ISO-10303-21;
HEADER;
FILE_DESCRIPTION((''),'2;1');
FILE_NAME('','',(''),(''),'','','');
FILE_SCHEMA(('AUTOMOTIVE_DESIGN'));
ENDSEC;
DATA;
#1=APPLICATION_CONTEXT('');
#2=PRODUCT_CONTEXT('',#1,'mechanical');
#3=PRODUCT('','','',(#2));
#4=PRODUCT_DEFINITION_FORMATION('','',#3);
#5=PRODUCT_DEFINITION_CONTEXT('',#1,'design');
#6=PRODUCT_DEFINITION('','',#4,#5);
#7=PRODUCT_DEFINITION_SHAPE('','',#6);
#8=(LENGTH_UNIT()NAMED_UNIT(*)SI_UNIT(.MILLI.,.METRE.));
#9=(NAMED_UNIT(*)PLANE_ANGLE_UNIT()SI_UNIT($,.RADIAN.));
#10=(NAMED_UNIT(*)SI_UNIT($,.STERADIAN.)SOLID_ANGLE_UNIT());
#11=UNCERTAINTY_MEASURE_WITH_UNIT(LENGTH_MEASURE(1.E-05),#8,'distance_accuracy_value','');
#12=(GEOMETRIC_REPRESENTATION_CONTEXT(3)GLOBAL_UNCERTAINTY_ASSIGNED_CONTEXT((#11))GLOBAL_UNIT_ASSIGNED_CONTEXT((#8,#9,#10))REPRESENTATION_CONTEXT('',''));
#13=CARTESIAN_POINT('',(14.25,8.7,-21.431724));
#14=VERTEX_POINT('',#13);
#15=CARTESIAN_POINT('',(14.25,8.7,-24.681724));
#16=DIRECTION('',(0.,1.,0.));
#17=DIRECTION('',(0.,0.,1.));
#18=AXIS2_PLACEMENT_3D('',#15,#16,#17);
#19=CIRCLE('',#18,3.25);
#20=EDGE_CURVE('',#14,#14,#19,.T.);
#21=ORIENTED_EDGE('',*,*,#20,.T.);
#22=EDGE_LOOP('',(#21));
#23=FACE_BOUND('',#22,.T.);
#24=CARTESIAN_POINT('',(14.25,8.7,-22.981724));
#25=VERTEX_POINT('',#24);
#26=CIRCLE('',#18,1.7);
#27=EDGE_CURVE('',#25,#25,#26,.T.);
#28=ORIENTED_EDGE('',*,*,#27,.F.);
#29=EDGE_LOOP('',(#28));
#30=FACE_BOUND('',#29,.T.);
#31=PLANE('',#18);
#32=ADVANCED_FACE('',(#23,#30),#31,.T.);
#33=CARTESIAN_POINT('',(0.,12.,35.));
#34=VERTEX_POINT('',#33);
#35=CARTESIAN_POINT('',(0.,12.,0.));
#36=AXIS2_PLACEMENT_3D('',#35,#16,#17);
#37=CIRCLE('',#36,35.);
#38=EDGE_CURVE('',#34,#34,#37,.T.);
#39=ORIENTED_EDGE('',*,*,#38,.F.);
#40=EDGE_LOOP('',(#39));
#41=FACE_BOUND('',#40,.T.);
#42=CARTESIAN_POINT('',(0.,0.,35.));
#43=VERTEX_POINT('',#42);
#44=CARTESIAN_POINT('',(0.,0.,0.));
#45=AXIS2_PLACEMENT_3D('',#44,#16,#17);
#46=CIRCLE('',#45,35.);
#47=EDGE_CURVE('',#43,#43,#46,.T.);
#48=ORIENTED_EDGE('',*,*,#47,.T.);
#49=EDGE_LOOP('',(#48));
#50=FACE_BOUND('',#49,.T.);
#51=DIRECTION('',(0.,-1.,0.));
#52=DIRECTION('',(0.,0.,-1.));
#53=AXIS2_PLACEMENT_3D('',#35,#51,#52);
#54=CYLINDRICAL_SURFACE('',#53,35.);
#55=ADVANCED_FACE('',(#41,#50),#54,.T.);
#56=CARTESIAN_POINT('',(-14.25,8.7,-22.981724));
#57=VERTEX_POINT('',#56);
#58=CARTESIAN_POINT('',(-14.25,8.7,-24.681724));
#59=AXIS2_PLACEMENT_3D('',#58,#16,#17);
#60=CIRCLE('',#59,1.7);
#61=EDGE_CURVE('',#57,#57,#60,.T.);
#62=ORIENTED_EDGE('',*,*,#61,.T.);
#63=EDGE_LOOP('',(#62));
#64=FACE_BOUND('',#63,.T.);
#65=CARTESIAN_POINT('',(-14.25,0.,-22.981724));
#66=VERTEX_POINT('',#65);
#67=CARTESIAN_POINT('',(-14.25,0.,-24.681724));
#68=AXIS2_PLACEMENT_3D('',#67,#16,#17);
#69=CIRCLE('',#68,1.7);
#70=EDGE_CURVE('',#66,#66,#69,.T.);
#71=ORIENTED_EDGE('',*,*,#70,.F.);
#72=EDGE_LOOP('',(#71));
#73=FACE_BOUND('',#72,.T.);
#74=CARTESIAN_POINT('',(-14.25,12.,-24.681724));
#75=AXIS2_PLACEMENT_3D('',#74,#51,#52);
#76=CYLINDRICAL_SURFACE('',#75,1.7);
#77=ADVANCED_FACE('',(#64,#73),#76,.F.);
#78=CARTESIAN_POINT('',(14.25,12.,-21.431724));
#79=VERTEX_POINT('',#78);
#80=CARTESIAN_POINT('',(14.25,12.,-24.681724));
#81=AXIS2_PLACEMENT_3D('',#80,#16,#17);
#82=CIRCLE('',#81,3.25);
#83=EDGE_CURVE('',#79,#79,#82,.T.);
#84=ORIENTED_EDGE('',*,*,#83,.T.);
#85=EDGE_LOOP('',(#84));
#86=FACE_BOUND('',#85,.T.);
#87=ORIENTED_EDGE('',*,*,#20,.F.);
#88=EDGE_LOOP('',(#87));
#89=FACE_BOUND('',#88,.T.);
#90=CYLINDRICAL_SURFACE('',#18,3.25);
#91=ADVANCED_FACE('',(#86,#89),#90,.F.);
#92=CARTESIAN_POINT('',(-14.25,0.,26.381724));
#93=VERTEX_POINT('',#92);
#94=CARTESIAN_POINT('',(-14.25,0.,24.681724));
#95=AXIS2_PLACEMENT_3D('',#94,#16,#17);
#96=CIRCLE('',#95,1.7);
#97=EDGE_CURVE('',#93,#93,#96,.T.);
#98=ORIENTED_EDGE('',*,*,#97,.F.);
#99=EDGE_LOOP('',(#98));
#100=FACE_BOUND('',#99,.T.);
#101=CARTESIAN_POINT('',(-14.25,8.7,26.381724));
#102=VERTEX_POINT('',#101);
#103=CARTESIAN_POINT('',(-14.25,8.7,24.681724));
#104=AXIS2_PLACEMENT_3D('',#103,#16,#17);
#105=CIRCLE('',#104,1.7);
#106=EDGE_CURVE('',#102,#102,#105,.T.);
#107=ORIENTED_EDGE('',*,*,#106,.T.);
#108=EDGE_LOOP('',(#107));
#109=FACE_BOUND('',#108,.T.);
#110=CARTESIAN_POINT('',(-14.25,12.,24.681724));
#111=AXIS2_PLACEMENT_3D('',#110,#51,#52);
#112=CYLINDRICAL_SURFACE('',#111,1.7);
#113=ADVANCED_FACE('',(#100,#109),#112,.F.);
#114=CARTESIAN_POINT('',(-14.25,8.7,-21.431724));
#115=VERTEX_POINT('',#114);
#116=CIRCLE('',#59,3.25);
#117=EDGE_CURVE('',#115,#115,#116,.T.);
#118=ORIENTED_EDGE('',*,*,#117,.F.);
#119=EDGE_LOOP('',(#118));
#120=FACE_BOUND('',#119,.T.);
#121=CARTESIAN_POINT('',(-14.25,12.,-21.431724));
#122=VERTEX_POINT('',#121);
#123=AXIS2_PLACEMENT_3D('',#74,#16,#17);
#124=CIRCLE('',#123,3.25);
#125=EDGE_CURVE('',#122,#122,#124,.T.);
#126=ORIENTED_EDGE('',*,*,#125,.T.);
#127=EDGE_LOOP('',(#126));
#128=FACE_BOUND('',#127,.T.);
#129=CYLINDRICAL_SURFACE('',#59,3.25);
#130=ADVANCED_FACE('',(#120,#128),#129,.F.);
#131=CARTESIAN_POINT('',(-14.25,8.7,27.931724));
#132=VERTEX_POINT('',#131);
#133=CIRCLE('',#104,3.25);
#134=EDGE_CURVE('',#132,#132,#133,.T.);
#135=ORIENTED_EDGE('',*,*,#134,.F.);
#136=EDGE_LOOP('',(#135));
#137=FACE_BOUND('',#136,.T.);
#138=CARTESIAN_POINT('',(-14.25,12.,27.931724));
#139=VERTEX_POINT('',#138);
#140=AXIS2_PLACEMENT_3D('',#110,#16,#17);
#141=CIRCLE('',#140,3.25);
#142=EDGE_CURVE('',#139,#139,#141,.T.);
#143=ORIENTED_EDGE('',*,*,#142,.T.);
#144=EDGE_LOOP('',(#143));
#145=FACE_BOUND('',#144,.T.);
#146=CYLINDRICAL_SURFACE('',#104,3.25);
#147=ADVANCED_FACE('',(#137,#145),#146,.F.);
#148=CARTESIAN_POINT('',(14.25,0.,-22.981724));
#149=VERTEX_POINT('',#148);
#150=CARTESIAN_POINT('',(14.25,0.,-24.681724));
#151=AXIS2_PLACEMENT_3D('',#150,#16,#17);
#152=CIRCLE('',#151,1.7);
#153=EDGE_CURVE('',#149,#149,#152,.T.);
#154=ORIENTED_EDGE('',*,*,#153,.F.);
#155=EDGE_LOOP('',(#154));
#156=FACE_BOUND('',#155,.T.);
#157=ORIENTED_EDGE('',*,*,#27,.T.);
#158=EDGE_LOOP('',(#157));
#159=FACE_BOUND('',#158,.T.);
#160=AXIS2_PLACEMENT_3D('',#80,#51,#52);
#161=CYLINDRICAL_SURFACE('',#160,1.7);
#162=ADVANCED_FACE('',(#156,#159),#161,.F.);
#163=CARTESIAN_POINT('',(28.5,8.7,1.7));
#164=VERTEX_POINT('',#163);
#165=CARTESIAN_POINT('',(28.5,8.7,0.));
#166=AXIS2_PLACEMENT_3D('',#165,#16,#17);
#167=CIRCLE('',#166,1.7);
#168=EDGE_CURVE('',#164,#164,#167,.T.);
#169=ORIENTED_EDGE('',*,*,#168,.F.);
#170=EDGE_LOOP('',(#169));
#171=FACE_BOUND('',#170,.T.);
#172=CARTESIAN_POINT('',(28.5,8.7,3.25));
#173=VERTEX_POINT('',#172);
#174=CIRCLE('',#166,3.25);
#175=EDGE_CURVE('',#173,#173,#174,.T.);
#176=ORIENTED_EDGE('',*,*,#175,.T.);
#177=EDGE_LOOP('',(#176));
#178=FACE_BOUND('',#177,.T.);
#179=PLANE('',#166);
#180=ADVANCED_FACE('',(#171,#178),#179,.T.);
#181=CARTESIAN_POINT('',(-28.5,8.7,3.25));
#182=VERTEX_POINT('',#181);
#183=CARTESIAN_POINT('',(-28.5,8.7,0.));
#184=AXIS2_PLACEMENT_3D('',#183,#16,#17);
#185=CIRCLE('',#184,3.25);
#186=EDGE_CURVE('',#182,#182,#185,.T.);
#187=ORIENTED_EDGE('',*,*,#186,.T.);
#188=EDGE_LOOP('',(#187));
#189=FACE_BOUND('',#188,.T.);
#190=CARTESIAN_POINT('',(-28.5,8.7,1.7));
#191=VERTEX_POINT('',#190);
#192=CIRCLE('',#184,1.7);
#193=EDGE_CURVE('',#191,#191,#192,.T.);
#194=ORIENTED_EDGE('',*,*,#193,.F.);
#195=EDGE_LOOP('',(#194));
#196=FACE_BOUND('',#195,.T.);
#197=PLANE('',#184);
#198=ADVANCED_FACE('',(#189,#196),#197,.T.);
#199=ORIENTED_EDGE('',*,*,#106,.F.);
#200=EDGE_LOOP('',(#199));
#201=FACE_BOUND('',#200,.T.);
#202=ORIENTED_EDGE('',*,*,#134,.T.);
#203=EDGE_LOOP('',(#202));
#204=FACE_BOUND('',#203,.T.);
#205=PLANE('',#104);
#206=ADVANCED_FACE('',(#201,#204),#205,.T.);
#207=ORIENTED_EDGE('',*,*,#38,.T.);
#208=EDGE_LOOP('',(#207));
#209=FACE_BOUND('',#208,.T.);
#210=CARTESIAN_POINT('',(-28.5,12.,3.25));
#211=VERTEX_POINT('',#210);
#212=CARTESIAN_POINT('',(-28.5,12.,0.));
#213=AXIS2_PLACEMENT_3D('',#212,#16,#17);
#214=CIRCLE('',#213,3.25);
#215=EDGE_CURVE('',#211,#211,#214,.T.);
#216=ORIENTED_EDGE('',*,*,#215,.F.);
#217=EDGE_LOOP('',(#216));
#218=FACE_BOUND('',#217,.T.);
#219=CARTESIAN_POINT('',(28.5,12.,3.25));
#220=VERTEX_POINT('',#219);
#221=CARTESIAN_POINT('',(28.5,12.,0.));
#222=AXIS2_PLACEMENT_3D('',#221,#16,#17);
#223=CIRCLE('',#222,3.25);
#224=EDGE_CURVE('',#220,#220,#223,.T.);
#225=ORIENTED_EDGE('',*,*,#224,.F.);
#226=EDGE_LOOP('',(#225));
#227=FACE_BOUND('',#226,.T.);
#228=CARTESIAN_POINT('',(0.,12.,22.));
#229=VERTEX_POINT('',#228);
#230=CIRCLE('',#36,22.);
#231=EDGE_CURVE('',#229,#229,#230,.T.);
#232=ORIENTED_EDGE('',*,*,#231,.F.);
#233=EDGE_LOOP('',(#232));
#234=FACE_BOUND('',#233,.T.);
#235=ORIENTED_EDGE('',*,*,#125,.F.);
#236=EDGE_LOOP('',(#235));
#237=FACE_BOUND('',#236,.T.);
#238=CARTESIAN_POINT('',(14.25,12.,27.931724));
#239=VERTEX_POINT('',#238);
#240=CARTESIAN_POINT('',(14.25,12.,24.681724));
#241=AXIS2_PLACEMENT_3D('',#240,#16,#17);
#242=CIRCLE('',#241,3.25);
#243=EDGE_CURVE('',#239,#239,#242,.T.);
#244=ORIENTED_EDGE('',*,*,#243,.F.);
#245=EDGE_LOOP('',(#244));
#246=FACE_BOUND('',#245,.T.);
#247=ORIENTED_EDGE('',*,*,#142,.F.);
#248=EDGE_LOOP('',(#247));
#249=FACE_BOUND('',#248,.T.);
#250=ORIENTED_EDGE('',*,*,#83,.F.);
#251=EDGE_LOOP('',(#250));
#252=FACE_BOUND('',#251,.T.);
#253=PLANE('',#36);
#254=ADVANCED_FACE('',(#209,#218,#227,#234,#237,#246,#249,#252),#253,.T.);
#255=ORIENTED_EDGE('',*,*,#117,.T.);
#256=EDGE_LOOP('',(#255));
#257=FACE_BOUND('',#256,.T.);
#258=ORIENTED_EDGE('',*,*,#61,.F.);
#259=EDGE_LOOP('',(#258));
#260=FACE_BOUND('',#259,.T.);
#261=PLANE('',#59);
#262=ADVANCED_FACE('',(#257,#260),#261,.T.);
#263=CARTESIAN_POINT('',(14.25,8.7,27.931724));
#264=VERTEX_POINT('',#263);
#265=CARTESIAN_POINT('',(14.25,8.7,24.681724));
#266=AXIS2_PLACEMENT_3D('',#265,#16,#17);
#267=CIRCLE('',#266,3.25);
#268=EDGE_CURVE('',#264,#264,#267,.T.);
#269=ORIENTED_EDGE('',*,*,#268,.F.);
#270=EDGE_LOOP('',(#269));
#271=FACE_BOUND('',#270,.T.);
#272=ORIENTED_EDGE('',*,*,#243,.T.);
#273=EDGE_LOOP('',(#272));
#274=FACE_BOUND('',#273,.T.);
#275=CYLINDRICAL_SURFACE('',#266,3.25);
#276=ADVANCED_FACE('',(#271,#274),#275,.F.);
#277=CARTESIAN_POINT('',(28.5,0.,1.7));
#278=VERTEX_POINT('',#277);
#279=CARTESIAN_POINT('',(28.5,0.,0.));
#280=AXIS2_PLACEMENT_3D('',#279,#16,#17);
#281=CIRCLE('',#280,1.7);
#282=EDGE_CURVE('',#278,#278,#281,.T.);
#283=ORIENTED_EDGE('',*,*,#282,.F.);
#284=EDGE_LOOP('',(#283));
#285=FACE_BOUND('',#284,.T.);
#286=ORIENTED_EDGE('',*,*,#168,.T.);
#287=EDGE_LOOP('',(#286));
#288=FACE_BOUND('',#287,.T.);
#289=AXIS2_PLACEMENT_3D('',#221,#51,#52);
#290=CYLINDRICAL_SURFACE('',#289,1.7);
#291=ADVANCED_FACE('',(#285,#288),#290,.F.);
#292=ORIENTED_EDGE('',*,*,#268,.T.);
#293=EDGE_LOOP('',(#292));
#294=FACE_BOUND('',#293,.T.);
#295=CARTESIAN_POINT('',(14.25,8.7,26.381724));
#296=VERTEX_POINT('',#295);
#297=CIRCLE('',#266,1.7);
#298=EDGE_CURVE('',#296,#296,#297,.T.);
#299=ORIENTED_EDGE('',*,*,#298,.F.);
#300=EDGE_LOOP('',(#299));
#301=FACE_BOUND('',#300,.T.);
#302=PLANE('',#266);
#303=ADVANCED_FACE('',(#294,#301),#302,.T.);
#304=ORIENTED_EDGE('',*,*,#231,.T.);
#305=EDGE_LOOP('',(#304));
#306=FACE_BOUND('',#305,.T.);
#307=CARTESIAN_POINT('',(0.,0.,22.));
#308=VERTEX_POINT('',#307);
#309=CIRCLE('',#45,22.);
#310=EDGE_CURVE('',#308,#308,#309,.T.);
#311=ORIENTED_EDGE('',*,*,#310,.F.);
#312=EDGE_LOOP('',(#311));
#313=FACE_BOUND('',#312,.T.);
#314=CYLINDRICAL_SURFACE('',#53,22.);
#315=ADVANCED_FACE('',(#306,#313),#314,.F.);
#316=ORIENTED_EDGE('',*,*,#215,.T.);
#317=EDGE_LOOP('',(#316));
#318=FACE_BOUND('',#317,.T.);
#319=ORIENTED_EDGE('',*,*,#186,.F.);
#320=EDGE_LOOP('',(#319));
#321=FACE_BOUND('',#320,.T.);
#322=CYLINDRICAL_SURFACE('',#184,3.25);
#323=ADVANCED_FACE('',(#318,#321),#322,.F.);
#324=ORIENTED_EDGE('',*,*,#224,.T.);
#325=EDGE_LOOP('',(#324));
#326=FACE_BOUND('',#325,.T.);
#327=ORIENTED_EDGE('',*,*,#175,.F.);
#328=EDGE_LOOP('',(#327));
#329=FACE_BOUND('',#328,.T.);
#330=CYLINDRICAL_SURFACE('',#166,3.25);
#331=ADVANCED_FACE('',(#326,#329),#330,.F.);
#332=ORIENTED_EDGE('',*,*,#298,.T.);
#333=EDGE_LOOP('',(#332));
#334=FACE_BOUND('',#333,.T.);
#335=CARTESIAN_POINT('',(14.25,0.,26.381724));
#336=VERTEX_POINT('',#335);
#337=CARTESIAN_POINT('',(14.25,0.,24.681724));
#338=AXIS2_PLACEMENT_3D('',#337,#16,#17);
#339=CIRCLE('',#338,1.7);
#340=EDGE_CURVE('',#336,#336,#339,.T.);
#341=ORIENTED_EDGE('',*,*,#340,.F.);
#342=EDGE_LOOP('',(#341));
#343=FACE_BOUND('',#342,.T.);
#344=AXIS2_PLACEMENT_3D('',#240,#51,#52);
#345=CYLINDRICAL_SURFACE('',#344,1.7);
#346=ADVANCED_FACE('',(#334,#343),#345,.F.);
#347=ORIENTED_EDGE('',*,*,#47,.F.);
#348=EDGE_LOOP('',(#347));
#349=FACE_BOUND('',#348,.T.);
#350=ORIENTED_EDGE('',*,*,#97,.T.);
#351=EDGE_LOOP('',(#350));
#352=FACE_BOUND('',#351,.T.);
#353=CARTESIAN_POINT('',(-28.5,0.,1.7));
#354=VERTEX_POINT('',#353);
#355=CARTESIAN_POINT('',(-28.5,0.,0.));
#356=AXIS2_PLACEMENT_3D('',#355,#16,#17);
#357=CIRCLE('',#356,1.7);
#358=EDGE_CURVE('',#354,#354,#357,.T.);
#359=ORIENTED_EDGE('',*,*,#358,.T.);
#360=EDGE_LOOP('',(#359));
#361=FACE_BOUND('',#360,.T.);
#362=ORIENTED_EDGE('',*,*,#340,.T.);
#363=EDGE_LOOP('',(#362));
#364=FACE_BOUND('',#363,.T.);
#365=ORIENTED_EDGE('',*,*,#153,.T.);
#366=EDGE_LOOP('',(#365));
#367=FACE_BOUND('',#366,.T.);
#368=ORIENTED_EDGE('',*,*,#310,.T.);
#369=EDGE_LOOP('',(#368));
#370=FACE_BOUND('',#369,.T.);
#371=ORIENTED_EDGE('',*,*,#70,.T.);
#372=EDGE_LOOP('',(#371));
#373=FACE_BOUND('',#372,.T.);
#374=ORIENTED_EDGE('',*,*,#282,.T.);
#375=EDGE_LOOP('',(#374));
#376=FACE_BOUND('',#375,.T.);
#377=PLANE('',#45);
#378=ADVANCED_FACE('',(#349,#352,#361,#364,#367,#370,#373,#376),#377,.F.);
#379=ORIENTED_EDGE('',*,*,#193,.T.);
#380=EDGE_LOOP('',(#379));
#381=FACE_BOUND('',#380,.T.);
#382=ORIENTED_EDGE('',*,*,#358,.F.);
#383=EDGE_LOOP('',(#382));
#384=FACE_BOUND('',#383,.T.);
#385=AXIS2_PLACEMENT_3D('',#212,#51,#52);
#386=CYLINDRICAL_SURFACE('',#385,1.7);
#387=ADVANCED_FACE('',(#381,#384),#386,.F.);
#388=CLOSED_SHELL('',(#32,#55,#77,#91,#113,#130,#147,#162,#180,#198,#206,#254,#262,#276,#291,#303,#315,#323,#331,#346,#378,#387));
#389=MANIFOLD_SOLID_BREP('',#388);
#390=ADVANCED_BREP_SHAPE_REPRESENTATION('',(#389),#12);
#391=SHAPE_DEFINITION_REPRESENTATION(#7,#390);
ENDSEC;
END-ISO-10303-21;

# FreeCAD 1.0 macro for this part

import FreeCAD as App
import Part
import Sketcher
from FreeCAD import Vector
Q = App.Units.Quantity

doc = App.newDocument("Part")
body = doc.addObject("PartDesign::Body", "Body")

sketch1 = doc.addObject("Sketcher::SketchObject", "Sketch")
body.addObject(sketch1)
sketch1.AttachmentSupport = (doc.XZ_Plane, [""])
sketch1.MapMode = "FlatFace"
sketch1.addGeometry([
    Part.Circle(Vector(0, 0, 0), Vector(0, 0, 1), 35),
    Part.Circle(Vector(-14.2, -24.7, 0), Vector(0, 0, 1), 1.7),
    Part.Circle(Vector(-28.5, 0, 0), Vector(0, 0, 1), 1.7),
    Part.Circle(Vector(-14.2, 24.7, 0), Vector(0, 0, 1), 1.7),
    Part.Circle(Vector(14.2, -24.7, 0), Vector(0, 0, 1), 1.7),
    Part.Circle(Vector(28.5, 0, 0), Vector(0, 0, 1), 1.7),
    Part.Circle(Vector(0, 0, 0), Vector(0, 0, 1), 22),
    Part.Circle(Vector(14.2, 24.7, 0), Vector(0, 0, 1), 1.7),
], False)
sketch1.addConstraint([
    Sketcher.Constraint("Coincident", 0, 3, -1, 1),
    Sketcher.Constraint("Coincident", 6, 3, -1, 1),
    Sketcher.Constraint("Equal", 1, 2),
    Sketcher.Constraint("Equal", 2, 3),
    Sketcher.Constraint("Equal", 3, 4),
    Sketcher.Constraint("Equal", 4, 5),
    Sketcher.Constraint("Equal", 5, 7),
    Sketcher.Constraint("Symmetric", 3, 3, 4, 3, -1, 1),
    Sketcher.Constraint("Symmetric", 2, 3, 5, 3, -1, 1),
    Sketcher.Constraint("Symmetric", 1, 3, 7, 3, -1, 1),
    Sketcher.Constraint("Symmetric", 1, 3, 4, 3, -2),
    Sketcher.Constraint("PointOnObject", 2, 3, -1),
    Sketcher.Constraint("Diameter", 0, Q("70 mm")),
    Sketcher.Constraint("Diameter", 6, Q("44 mm")),
    Sketcher.Constraint("Diameter", 1, Q("3.4 mm")),
    Sketcher.Constraint("DistanceX", 2, 3, 5, 3, Q("57 mm")),
    Sketcher.Constraint("DistanceX", 1, 3, 4, 3, Q("28.5 mm")),
    Sketcher.Constraint("DistanceY", 1, 3, 3, 3, Q("49.363448 mm")),
])
pad1 = doc.addObject("PartDesign::Pad", "Pad")
body.addObject(pad1)
pad1.Profile = sketch1
pad1.Length = 12
pad1.Reversed = True

sketch2 = doc.addObject("Sketcher::SketchObject", "Sketch001")
body.addObject(sketch2)
sketch2.AttachmentSupport = (doc.XZ_Plane, [""])
sketch2.MapMode = "FlatFace"
sketch2.AttachmentOffset = App.Placement(Vector(0, 0, -12), App.Rotation())
sketch2.addGeometry([
    Part.Circle(Vector(-28.5, 0, 0), Vector(0, 0, 1), 3.2),
    Part.Circle(Vector(-14.2, -24.7, 0), Vector(0, 0, 1), 3.2),
    Part.Circle(Vector(14.2, -24.7, 0), Vector(0, 0, 1), 3.2),
    Part.Circle(Vector(28.5, 0, 0), Vector(0, 0, 1), 3.2),
    Part.Circle(Vector(14.2, 24.7, 0), Vector(0, 0, 1), 3.2),
    Part.Circle(Vector(-14.2, 24.7, 0), Vector(0, 0, 1), 3.2),
], False)
sketch2.addConstraint([
    Sketcher.Constraint("Equal", 0, 1),
    Sketcher.Constraint("Equal", 1, 2),
    Sketcher.Constraint("Equal", 2, 3),
    Sketcher.Constraint("Equal", 3, 4),
    Sketcher.Constraint("Equal", 4, 5),
    Sketcher.Constraint("Symmetric", 0, 3, 3, 3, -1, 1),
    Sketcher.Constraint("Symmetric", 1, 3, 4, 3, -1, 1),
    Sketcher.Constraint("Symmetric", 2, 3, 5, 3, -1, 1),
    Sketcher.Constraint("Symmetric", 1, 3, 2, 3, -2),
    Sketcher.Constraint("PointOnObject", 0, 3, -1),
    Sketcher.Constraint("Diameter", 0, Q("6.5 mm")),
    Sketcher.Constraint("DistanceX", 0, 3, 3, 3, Q("57 mm")),
    Sketcher.Constraint("DistanceX", 1, 3, 2, 3, Q("28.5 mm")),
    Sketcher.Constraint("DistanceY", 2, 3, 4, 3, Q("49.363448 mm")),
])
pocket1 = doc.addObject("PartDesign::Pocket", "Pocket")
body.addObject(pocket1)
pocket1.Profile = sketch2
pocket1.Length = 3.3
pocket1.Reversed = True

doc.recompute()
